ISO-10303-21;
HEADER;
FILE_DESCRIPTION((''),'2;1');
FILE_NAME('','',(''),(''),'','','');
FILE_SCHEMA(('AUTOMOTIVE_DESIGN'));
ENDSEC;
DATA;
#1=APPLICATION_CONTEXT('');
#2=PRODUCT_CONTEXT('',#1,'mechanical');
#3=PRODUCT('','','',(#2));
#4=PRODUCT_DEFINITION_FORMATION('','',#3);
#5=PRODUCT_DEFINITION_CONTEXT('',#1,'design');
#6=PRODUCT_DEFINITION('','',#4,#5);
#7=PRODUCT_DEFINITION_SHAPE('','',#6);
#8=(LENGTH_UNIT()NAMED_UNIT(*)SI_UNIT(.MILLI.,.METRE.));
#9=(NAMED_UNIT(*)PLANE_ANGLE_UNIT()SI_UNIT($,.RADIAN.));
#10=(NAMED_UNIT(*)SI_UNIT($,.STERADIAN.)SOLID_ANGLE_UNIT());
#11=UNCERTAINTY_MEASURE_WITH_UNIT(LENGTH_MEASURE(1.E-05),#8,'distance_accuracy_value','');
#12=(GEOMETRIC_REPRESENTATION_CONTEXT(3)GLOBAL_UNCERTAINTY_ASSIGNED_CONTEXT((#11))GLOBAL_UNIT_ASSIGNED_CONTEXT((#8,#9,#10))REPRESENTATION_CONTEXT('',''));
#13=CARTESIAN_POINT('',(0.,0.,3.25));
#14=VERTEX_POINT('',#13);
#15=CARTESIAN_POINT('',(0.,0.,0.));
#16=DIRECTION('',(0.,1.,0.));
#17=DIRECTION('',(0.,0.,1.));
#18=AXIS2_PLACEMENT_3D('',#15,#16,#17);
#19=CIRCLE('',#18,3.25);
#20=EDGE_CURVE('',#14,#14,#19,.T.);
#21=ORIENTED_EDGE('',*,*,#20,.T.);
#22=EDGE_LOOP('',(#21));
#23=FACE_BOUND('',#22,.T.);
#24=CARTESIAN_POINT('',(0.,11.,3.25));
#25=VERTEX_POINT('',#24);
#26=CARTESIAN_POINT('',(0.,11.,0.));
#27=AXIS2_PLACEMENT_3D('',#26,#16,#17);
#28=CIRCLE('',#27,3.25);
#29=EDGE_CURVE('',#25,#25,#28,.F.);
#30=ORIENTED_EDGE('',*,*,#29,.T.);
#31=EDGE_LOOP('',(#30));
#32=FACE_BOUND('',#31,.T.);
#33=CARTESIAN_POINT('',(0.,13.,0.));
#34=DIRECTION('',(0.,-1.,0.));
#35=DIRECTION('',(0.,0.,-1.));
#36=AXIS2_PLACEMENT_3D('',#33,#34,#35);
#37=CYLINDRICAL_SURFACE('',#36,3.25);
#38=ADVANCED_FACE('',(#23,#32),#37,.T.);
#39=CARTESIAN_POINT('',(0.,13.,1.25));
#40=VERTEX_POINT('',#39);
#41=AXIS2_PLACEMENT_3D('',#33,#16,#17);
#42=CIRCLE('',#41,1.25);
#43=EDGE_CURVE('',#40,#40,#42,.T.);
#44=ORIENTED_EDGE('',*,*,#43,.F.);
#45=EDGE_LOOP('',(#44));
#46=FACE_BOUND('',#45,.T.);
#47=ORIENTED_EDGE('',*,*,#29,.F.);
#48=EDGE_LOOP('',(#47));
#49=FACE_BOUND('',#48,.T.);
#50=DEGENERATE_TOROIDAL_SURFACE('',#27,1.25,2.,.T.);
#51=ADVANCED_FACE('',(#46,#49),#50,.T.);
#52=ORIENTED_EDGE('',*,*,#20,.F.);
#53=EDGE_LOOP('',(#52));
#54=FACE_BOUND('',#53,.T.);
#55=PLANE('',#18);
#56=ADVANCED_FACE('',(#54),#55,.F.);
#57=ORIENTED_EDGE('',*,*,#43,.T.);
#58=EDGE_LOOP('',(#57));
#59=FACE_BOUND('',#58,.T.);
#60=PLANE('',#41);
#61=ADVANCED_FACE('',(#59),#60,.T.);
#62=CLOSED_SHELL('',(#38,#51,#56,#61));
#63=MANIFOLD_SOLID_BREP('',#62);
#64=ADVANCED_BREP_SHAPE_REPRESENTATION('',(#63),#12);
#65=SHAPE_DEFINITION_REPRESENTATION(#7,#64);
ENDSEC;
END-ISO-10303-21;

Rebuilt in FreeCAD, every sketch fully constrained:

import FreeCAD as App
import Part
import Sketcher


def edges_at(feature, points):
    """Names of the edges that pass closest to the given points."""
    edges = feature.Shape.Edges
    near = lambda p: min(range(len(edges)), key=lambda i: edges[i].distToShape(Part.Vertex(*p))[0])
    return sorted({f"Edge{near(p) + 1}" for p in points})

doc = App.newDocument("Part")
params = doc.addObject("Spreadsheet::Sheet", "Params")
for row, (alias, value) in enumerate([
    ("sketch1_diameter", "6.5 mm"),
    ("pad1_length", "13 mm"),
    ("fillet_radius", "2 mm"),
], start=1):
    params.set(f"A{row}", alias)
    params.set(f"B{row}", "=" + value)
    params.setAlias(f"B{row}", alias)

body = doc.addObject("PartDesign::Body", "Body")

sketch1 = body.newObject("Sketcher::SketchObject", "Sketch")
sketch1.AttachmentSupport = (doc.getObject("XZ_Plane"), [""])
sketch1.MapMode = "FlatFace"
sketch1.addGeometry(Part.Circle(App.Vector(0, 0, 0), App.Vector(0, 0, 1), 3.2), False)
sketch1.addConstraint([
    Sketcher.Constraint("Coincident", 0, 3, -1, 1),
    Sketcher.Constraint("Diameter", 0, 6.5),
])
sketch1.setExpression("Constraints[1]", "Params.sketch1_diameter")
pad1 = body.newObject("PartDesign::Pad", "Pad")
pad1.Profile = sketch1
pad1.setExpression("Length", "Params.pad1_length")
pad1.Reversed = True
doc.recompute()

fillet = body.newObject("PartDesign::Fillet", "Fillet")
fillet.Base = (pad1, edges_at(pad1, [(0, 13, -3.25)]))
fillet.setExpression("Radius", "Params.fillet_radius")

doc.recompute()
